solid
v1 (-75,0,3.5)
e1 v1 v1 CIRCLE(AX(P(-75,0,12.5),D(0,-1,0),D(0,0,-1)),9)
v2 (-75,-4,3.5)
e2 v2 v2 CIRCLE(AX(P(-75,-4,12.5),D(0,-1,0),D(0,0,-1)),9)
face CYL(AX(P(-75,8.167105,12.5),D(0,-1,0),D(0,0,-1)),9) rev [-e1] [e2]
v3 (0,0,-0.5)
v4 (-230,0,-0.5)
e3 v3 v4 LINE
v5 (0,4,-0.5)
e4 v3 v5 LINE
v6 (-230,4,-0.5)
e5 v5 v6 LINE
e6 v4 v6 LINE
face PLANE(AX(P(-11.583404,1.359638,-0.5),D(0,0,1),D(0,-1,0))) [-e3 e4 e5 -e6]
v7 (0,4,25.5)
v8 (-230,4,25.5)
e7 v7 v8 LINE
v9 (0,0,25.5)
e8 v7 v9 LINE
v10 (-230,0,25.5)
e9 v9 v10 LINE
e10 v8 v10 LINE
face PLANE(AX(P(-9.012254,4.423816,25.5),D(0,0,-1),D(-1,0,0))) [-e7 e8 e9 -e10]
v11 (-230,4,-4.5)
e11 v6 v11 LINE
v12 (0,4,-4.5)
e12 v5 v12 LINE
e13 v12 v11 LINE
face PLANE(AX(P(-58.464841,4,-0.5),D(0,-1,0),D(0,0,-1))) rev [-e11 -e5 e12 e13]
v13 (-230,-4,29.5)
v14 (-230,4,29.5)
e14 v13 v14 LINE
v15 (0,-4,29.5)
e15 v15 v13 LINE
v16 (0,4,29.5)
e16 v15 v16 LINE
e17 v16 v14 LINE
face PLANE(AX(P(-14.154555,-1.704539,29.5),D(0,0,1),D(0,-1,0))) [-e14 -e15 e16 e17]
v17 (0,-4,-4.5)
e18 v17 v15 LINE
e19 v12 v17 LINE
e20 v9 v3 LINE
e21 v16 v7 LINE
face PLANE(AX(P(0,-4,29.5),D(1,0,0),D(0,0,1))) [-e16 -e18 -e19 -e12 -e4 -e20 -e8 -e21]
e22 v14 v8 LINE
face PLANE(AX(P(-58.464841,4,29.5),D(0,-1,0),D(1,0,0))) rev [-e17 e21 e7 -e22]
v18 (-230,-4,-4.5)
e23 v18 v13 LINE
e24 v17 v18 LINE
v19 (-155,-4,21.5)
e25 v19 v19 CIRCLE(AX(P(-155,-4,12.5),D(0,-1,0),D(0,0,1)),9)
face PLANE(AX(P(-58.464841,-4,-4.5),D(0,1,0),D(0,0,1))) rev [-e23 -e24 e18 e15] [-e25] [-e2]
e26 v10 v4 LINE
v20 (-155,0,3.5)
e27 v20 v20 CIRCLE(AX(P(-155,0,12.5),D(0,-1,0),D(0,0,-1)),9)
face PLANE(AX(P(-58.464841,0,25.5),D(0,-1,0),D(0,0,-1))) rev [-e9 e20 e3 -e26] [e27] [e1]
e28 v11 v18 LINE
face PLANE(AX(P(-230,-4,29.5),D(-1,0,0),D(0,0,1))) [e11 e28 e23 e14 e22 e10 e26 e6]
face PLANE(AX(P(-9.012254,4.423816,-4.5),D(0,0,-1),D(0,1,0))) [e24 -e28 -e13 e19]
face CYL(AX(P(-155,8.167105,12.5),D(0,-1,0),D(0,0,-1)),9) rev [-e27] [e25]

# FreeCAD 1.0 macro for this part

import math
import FreeCAD as App
import Part
import Sketcher
from FreeCAD import Vector
Q = App.Units.Quantity

doc = App.newDocument("Part")
params = doc.addObject("Spreadsheet::Sheet", "Params")
for row, (alias, value) in enumerate([
    ("sketch1_width", "26 mm"),
    ("sketch1_width2", "4 mm"),
    ("sketch1_height", "8 mm"),
    ("sketch2_radius", "12 mm"),
    ("sketch2_radius2", "17 mm"),
    ("sketch3_diameter", "18 mm"),
    ("sketch6_width", "8 mm"),
    ("sketch6_width2", "4 mm"),
    ("sketch6_height", "26 mm"),
    ("pad1_length", "65 mm"),
], start=1):
    params.set(f"A{row}", alias)
    params.set(f"B{row}", "=" + value)
    params.setAlias(f"B{row}", alias)

body = doc.addObject("PartDesign::Body", "Body")

sketch1 = body.newObject("Sketcher::SketchObject", "Sketch")
sketch1.Placement = App.Placement(Vector(-4.635138, -4.470649, 0), App.Rotation(Vector(0, 0, -1), Vector(0.64278761, 0.766044443, 0), Vector(0.766044443, -0.64278761, 0), "ZXY"))
sketch1.addGeometry(Part.LineSegment(Vector(0.5, 0, 0), Vector(-25.5, 0, 0)), False)
sketch1.addGeometry(Part.LineSegment(Vector(-25.5, 0, 0), Vector(-25.5, 4, 0)), False)
sketch1.addGeometry(Part.LineSegment(Vector(-25.5, 4, 0), Vector(-29.5, 4, 0)), False)
sketch1.addGeometry(Part.LineSegment(Vector(-29.5, 4, 0), Vector(-29.5, -4, 0)), False)
sketch1.addGeometry(Part.LineSegment(Vector(-29.5, -4, 0), Vector(4.5, -4, 0)), False)
sketch1.addGeometry(Part.LineSegment(Vector(4.5, -4, 0), Vector(4.5, 4, 0)), False)
sketch1.addGeometry(Part.LineSegment(Vector(4.5, 4, 0), Vector(0.5, 4, 0)), False)
sketch1.addGeometry(Part.LineSegment(Vector(0.5, 4, 0), Vector(0.5, 0, 0)), False)
sketch1.addConstraint(Sketcher.Constraint("Coincident", 0, 2, 1, 1))
sketch1.addConstraint(Sketcher.Constraint("Coincident", 1, 2, 2, 1))
sketch1.addConstraint(Sketcher.Constraint("Coincident", 2, 2, 3, 1))
sketch1.addConstraint(Sketcher.Constraint("Coincident", 3, 2, 4, 1))
sketch1.addConstraint(Sketcher.Constraint("Coincident", 4, 2, 5, 1))
sketch1.addConstraint(Sketcher.Constraint("Coincident", 5, 2, 6, 1))
sketch1.addConstraint(Sketcher.Constraint("Coincident", 6, 2, 7, 1))
sketch1.addConstraint(Sketcher.Constraint("Coincident", 7, 2, 0, 1))
sketch1.addConstraint(Sketcher.Constraint("Horizontal", 0))
sketch1.addConstraint(Sketcher.Constraint("Vertical", 1))
sketch1.addConstraint(Sketcher.Constraint("Horizontal", 2))
sketch1.addConstraint(Sketcher.Constraint("Vertical", 3))
sketch1.addConstraint(Sketcher.Constraint("Horizontal", 4))
sketch1.addConstraint(Sketcher.Constraint("Vertical", 5))
sketch1.addConstraint(Sketcher.Constraint("Horizontal", 6))
sketch1.addConstraint(Sketcher.Constraint("Vertical", 7))
sketch1.addConstraint(Sketcher.Constraint("PointOnObject", 0, 2, -1))
sketch1.addConstraint(Sketcher.Constraint("Horizontal", 2, 2, 5, 2))
sketch1.addConstraint(Sketcher.Constraint("Equal", 2, 6))
sketch1.addConstraint(Sketcher.Constraint("Equal", 6, 1))
sketch1.addConstraint(Sketcher.Constraint("DistanceX", 0, 2, 0, 1, 26.0))
sketch1.addConstraint(Sketcher.Constraint("DistanceX", 2, 2, 2, 1, 4.0))
sketch1.addConstraint(Sketcher.Constraint("DistanceY", 3, 2, 3, 1, 8.0))
sketch1.addConstraint(Sketcher.Constraint("DistanceX", 0, 2, -1, 1, 25.5))
sketch1.setExpression("Constraints[20]", "Params.sketch1_width")
sketch1.setExpression("Constraints[21]", "Params.sketch1_width2")
sketch1.setExpression("Constraints[22]", "Params.sketch1_height")

sketch2 = body.newObject("Sketcher::SketchObject", "Sketch001")
sketch2.AttachmentSupport = (doc.getObject("XY_Plane"), [""])
sketch2.MapMode = "FlatFace"
sketch2.addGeometry(Part.LineSegment(Vector(-225.4, -4.5, 0), Vector(-218.4, 1.4, 0)), False)
sketch2.addGeometry(Part.ArcOfCircle(Part.Circle(Vector(-210.7, -7.8, 0), Vector(0, 0, 1), 12), math.radians(90), math.radians(130)), False)
sketch2.addGeometry(Part.LineSegment(Vector(-210.7, 4.2, 0), Vector(-188.1, 4.2, 0)), False)
sketch2.addGeometry(Part.ArcOfCircle(Part.Circle(Vector(-188.1, -7.8, 0), Vector(0, 0, 1), 12), math.radians(70), math.radians(90)), False)
sketch2.addGeometry(Part.LineSegment(Vector(-184, 3.4, 0), Vector(-177.3, 1, 0)), False)
sketch2.addGeometry(Part.ArcOfCircle(Part.Circle(Vector(-171.5, 17, 0), Vector(0, 0, 1), 17), math.radians(-110), math.radians(-90)), False)
sketch2.addGeometry(Part.LineSegment(Vector(-171.5, 0, 0), Vector(-58.5, 0, 0)), False)
sketch2.addGeometry(Part.ArcOfCircle(Part.Circle(Vector(-58.5, 17, 0), Vector(0, 0, 1), 17), math.radians(-90), math.radians(-70)), False)
sketch2.addGeometry(Part.LineSegment(Vector(-52.7, 1, 0), Vector(-46, 3.4, 0)), False)
sketch2.addGeometry(Part.ArcOfCircle(Part.Circle(Vector(-41.9, -7.8, 0), Vector(0, 0, 1), 12), math.radians(90), math.radians(110)), False)
sketch2.addGeometry(Part.LineSegment(Vector(-41.9, 4.2, 0), Vector(-19.3, 4.2, 0)), False)
sketch2.addGeometry(Part.ArcOfCircle(Part.Circle(Vector(-19.3, -7.8, 0), Vector(0, 0, 1), 12), math.radians(50), math.radians(90)), False)
sketch2.addGeometry(Part.LineSegment(Vector(-11.6, 1.4, 0), Vector(-4.6, -4.5, 0)), False)
sketch2.addConstraint(Sketcher.Constraint("Tangent", 0, 2, 1, 2))
sketch2.addConstraint(Sketcher.Constraint("Tangent", 1, 1, 2, 1))
sketch2.addConstraint(Sketcher.Constraint("Tangent", 2, 2, 3, 2))
sketch2.addConstraint(Sketcher.Constraint("Tangent", 3, 1, 4, 1))
sketch2.addConstraint(Sketcher.Constraint("Tangent", 4, 2, 5, 1))
sketch2.addConstraint(Sketcher.Constraint("Tangent", 5, 2, 6, 1))
sketch2.addConstraint(Sketcher.Constraint("Tangent", 6, 2, 7, 1))
sketch2.addConstraint(Sketcher.Constraint("Tangent", 7, 2, 8, 1))
sketch2.addConstraint(Sketcher.Constraint("Tangent", 8, 2, 9, 2))
sketch2.addConstraint(Sketcher.Constraint("Tangent", 9, 1, 10, 1))
sketch2.addConstraint(Sketcher.Constraint("Tangent", 10, 2, 11, 2))
sketch2.addConstraint(Sketcher.Constraint("Tangent", 11, 1, 12, 1))
sketch2.addConstraint(Sketcher.Constraint("Horizontal", 2))
sketch2.addConstraint(Sketcher.Constraint("Horizontal", 6))
sketch2.addConstraint(Sketcher.Constraint("Horizontal", 10))
sketch2.addConstraint(Sketcher.Constraint("Equal", 1, 3))
sketch2.addConstraint(Sketcher.Constraint("Equal", 5, 7))
sketch2.addConstraint(Sketcher.Constraint("Equal", 3, 9))
sketch2.addConstraint(Sketcher.Constraint("Equal", 9, 11))
sketch2.addConstraint(Sketcher.Constraint("PointOnObject", 5, 2, -1))
sketch2.addConstraint(Sketcher.Constraint("Horizontal", 3, 3, 9, 3))
sketch2.addConstraint(Sketcher.Constraint("Horizontal", 4, 2, 7, 2))
sketch2.addConstraint(Sketcher.Constraint("Horizontal", 0, 2, 11, 1))
sketch2.addConstraint(Sketcher.Constraint("Horizontal", 0, 1, 12, 2))
sketch2.addConstraint(Sketcher.Constraint("Equal", 2, 10))
sketch2.addConstraint(Sketcher.Constraint("Radius", 1, 12.0))
sketch2.addConstraint(Sketcher.Constraint("Radius", 5, 17.0))
sketch2.addConstraint(Sketcher.Constraint("Angle", 0, Q("40 deg")))
sketch2.addConstraint(Sketcher.Constraint("Angle", 4, Q("-20 deg")))
sketch2.addConstraint(Sketcher.Constraint("DistanceX", 4, 2, -1, 1, 177.349501))
sketch2.addConstraint(Sketcher.Constraint("DistanceX", 7, 2, -1, 1, 52.650499))
sketch2.addConstraint(Sketcher.Constraint("DistanceX", 2, 1, 2, 2, 22.605476))
sketch2.addConstraint(Sketcher.Constraint("DistanceX", 3, 3, -1, 1, 188.097668))
sketch2.addConstraint(Sketcher.Constraint("DistanceY", 0, 1, -1, 1, 4.470649))
sketch2.setExpression("Constraints[25]", "Params.sketch2_radius")
sketch2.setExpression("Constraints[26]", "Params.sketch2_radius2")
doc.recompute()

additivepipe = body.newObject("PartDesign::AdditivePipe", "AdditivePipe")
additivepipe.Profile = sketch1
additivepipe.Spine = (sketch2, ["Edge1", "Edge2", "Edge3", "Edge4", "Edge5", "Edge6", "Edge7", "Edge8", "Edge9", "Edge10", "Edge11", "Edge12", "Edge13"])

sketch3 = body.newObject("Sketcher::SketchObject", "Sketch002")
sketch3.AttachmentSupport = (doc.getObject("XZ_Plane"), [""])
sketch3.MapMode = "FlatFace"
sketch3.AttachmentOffset = App.Placement(Vector(0, 0, 4), App.Rotation())
sketch3.addGeometry(Part.Circle(Vector(-75, 12, 0), Vector(0, 0, 1), 9), False)
sketch3.addGeometry(Part.Circle(Vector(-155, 12, 0), Vector(0, 0, 1), 9), False)
sketch3.addConstraint(Sketcher.Constraint("Equal", 0, 1))
sketch3.addConstraint(Sketcher.Constraint("Horizontal", 0, 3, 1, 3))
sketch3.addConstraint(Sketcher.Constraint("Diameter", 0, 18.0))
sketch3.addConstraint(Sketcher.Constraint("DistanceX", 0, 3, -1, 1, 75.0))
sketch3.addConstraint(Sketcher.Constraint("DistanceX", 1, 3, -1, 1, 155.0))
sketch3.addConstraint(Sketcher.Constraint("DistanceY", -1, 1, 0, 3, 12.5))
sketch3.setExpression("Constraints[2]", "Params.sketch3_diameter")
pocket1 = body.newObject("PartDesign::Pocket", "Pocket")
pocket1.Profile = sketch3
pocket1.Type = "ThroughAll"

sketch4 = body.newObject("Sketcher::SketchObject", "Sketch003")
sketch4.AttachmentSupport = (doc.getObject("XY_Plane"), [""])
sketch4.MapMode = "FlatFace"
sketch4.AttachmentOffset = App.Placement(Vector(0, 0, 29.5), App.Rotation())
sketch4.addGeometry(Part.LineSegment(Vector(-65, 18, 0), Vector(-65, -14, 0)), False)
sketch4.addGeometry(Part.LineSegment(Vector(-65, -14, 0), Vector(-2, -14, 0)), False)
sketch4.addGeometry(Part.LineSegment(Vector(-2, -14, 0), Vector(-2, 18, 0)), False)
sketch4.addGeometry(Part.LineSegment(Vector(-2, 18, 0), Vector(-65, 18, 0)), False)
sketch4.addConstraint(Sketcher.Constraint("Coincident", 0, 2, 1, 1))
sketch4.addConstraint(Sketcher.Constraint("Coincident", 1, 2, 2, 1))
sketch4.addConstraint(Sketcher.Constraint("Coincident", 2, 2, 3, 1))
sketch4.addConstraint(Sketcher.Constraint("Coincident", 3, 2, 0, 1))
sketch4.addConstraint(Sketcher.Constraint("Vertical", 0))
sketch4.addConstraint(Sketcher.Constraint("Horizontal", 1))
sketch4.addConstraint(Sketcher.Constraint("Vertical", 2))
sketch4.addConstraint(Sketcher.Constraint("Horizontal", 3))
sketch4.addConstraint(Sketcher.Constraint("DistanceX", 0, 2, -1, 1, 65.0))
sketch4.addConstraint(Sketcher.Constraint("DistanceY", 0, 2, -1, 1, 14.0))
sketch4.addConstraint(Sketcher.Constraint("DistanceX", 1, 1, 1, 2, 62.936013))
sketch4.addConstraint(Sketcher.Constraint("DistanceY", 0, 2, 0, 1, 32.167105))
pocket2 = body.newObject("PartDesign::Pocket", "Pocket001")
pocket2.Profile = sketch4
pocket2.Type = "ThroughAll"

sketch5 = body.newObject("Sketcher::SketchObject", "Sketch004")
sketch5.AttachmentSupport = (doc.getObject("XY_Plane"), [""])
sketch5.MapMode = "FlatFace"
sketch5.AttachmentOffset = App.Placement(Vector(0, 0, 29.5), App.Rotation())
sketch5.addGeometry(Part.LineSegment(Vector(-228, 18, 0), Vector(-228, -14, 0)), False)
sketch5.addGeometry(Part.LineSegment(Vector(-228, -14, 0), Vector(-165, -14, 0)), False)
sketch5.addGeometry(Part.LineSegment(Vector(-165, -14, 0), Vector(-165, 18, 0)), False)
sketch5.addGeometry(Part.LineSegment(Vector(-165, 18, 0), Vector(-228, 18, 0)), False)
sketch5.addConstraint(Sketcher.Constraint("Coincident", 0, 2, 1, 1))
sketch5.addConstraint(Sketcher.Constraint("Coincident", 1, 2, 2, 1))
sketch5.addConstraint(Sketcher.Constraint("Coincident", 2, 2, 3, 1))
sketch5.addConstraint(Sketcher.Constraint("Coincident", 3, 2, 0, 1))
sketch5.addConstraint(Sketcher.Constraint("Vertical", 0))
sketch5.addConstraint(Sketcher.Constraint("Horizontal", 1))
sketch5.addConstraint(Sketcher.Constraint("Vertical", 2))
sketch5.addConstraint(Sketcher.Constraint("Horizontal", 3))
sketch5.addConstraint(Sketcher.Constraint("DistanceY", 0, 2, -1, 1, 14.0))
sketch5.addConstraint(Sketcher.Constraint("DistanceX", 1, 2, -1, 1, 165.0))
sketch5.addConstraint(Sketcher.Constraint("DistanceX", 1, 1, 1, 2, 62.936013))
sketch5.addConstraint(Sketcher.Constraint("DistanceY", 0, 2, 0, 1, 32.167105))
pocket3 = body.newObject("PartDesign::Pocket", "Pocket002")
pocket3.Profile = sketch5
pocket3.Type = "ThroughAll"

sketch6 = body.newObject("Sketcher::SketchObject", "Sketch005")
sketch6.AttachmentSupport = (doc.getObject("YZ_Plane"), [""])
sketch6.MapMode = "FlatFace"
sketch6.AttachmentOffset = App.Placement(Vector(0, 0, -165), App.Rotation())
sketch6.addGeometry(Part.LineSegment(Vector(-4, 29.5, 0), Vector(4, 29.5, 0)), False)
sketch6.addGeometry(Part.LineSegment(Vector(4, 29.5, 0), Vector(4, 25.5, 0)), False)
sketch6.addGeometry(Part.LineSegment(Vector(4, 25.5, 0), Vector(0, 25.5, 0)), False)
sketch6.addGeometry(Part.LineSegment(Vector(0, 25.5, 0), Vector(0, -0.5, 0)), False)
sketch6.addGeometry(Part.LineSegment(Vector(0, -0.5, 0), Vector(4, -0.5, 0)), False)
sketch6.addGeometry(Part.LineSegment(Vector(4, -0.5, 0), Vector(4, -4.5, 0)), False)
sketch6.addGeometry(Part.LineSegment(Vector(4, -4.5, 0), Vector(-4, -4.5, 0)), False)
sketch6.addGeometry(Part.LineSegment(Vector(-4, -4.5, 0), Vector(-4, 29.5, 0)), False)
sketch6.addConstraint(Sketcher.Constraint("Coincident", 0, 2, 1, 1))
sketch6.addConstraint(Sketcher.Constraint("Coincident", 1, 2, 2, 1))
sketch6.addConstraint(Sketcher.Constraint("Coincident", 2, 2, 3, 1))
sketch6.addConstraint(Sketcher.Constraint("Coincident", 3, 2, 4, 1))
sketch6.addConstraint(Sketcher.Constraint("Coincident", 4, 2, 5, 1))
sketch6.addConstraint(Sketcher.Constraint("Coincident", 5, 2, 6, 1))
sketch6.addConstraint(Sketcher.Constraint("Coincident", 6, 2, 7, 1))
sketch6.addConstraint(Sketcher.Constraint("Coincident", 7, 2, 0, 1))
sketch6.addConstraint(Sketcher.Constraint("Horizontal", 0))
sketch6.addConstraint(Sketcher.Constraint("Vertical", 1))
sketch6.addConstraint(Sketcher.Constraint("Horizontal", 2))
sketch6.addConstraint(Sketcher.Constraint("Vertical", 3))
sketch6.addConstraint(Sketcher.Constraint("Horizontal", 4))
sketch6.addConstraint(Sketcher.Constraint("Vertical", 5))
sketch6.addConstraint(Sketcher.Constraint("Horizontal", 6))
sketch6.addConstraint(Sketcher.Constraint("Vertical", 7))
sketch6.addConstraint(Sketcher.Constraint("PointOnObject", 2, 2, -2))
sketch6.addConstraint(Sketcher.Constraint("Vertical", 1, 2, 4, 2))
sketch6.addConstraint(Sketcher.Constraint("Equal", 4, 1))
sketch6.addConstraint(Sketcher.Constraint("Equal", 1, 5))
sketch6.addConstraint(Sketcher.Constraint("DistanceX", 0, 1, 0, 2, 8.0))
sketch6.addConstraint(Sketcher.Constraint("DistanceX", 2, 2, 2, 1, 4.0))
sketch6.addConstraint(Sketcher.Constraint("DistanceY", 3, 2, 3, 1, 26.0))
sketch6.addConstraint(Sketcher.Constraint("DistanceY", -1, 1, 0, 2, 29.5))
sketch6.setExpression("Constraints[20]", "Params.sketch6_width")
sketch6.setExpression("Constraints[21]", "Params.sketch6_width2")
sketch6.setExpression("Constraints[22]", "Params.sketch6_height")
pad1 = body.newObject("PartDesign::Pad", "Pad")
pad1.Profile = sketch6
pad1.setExpression("Length", "Params.pad1_length")
pad1.Reversed = True
doc.recompute()

datumplane = body.newObject("PartDesign::Plane", "DatumPlane")
datumplane.AttachmentSupport = (doc.getObject("YZ_Plane"), [""])
datumplane.MapMode = "FlatFace"
datumplane.AttachmentOffset = App.Placement(Vector(0, 0, -115), App.Rotation())
mirrored = body.newObject("PartDesign::Mirrored", "Mirrored")
mirrored.Originals = [pad1]
mirrored.MirrorPlane = (datumplane, [""])
body.Tip = mirrored

doc.recompute()
